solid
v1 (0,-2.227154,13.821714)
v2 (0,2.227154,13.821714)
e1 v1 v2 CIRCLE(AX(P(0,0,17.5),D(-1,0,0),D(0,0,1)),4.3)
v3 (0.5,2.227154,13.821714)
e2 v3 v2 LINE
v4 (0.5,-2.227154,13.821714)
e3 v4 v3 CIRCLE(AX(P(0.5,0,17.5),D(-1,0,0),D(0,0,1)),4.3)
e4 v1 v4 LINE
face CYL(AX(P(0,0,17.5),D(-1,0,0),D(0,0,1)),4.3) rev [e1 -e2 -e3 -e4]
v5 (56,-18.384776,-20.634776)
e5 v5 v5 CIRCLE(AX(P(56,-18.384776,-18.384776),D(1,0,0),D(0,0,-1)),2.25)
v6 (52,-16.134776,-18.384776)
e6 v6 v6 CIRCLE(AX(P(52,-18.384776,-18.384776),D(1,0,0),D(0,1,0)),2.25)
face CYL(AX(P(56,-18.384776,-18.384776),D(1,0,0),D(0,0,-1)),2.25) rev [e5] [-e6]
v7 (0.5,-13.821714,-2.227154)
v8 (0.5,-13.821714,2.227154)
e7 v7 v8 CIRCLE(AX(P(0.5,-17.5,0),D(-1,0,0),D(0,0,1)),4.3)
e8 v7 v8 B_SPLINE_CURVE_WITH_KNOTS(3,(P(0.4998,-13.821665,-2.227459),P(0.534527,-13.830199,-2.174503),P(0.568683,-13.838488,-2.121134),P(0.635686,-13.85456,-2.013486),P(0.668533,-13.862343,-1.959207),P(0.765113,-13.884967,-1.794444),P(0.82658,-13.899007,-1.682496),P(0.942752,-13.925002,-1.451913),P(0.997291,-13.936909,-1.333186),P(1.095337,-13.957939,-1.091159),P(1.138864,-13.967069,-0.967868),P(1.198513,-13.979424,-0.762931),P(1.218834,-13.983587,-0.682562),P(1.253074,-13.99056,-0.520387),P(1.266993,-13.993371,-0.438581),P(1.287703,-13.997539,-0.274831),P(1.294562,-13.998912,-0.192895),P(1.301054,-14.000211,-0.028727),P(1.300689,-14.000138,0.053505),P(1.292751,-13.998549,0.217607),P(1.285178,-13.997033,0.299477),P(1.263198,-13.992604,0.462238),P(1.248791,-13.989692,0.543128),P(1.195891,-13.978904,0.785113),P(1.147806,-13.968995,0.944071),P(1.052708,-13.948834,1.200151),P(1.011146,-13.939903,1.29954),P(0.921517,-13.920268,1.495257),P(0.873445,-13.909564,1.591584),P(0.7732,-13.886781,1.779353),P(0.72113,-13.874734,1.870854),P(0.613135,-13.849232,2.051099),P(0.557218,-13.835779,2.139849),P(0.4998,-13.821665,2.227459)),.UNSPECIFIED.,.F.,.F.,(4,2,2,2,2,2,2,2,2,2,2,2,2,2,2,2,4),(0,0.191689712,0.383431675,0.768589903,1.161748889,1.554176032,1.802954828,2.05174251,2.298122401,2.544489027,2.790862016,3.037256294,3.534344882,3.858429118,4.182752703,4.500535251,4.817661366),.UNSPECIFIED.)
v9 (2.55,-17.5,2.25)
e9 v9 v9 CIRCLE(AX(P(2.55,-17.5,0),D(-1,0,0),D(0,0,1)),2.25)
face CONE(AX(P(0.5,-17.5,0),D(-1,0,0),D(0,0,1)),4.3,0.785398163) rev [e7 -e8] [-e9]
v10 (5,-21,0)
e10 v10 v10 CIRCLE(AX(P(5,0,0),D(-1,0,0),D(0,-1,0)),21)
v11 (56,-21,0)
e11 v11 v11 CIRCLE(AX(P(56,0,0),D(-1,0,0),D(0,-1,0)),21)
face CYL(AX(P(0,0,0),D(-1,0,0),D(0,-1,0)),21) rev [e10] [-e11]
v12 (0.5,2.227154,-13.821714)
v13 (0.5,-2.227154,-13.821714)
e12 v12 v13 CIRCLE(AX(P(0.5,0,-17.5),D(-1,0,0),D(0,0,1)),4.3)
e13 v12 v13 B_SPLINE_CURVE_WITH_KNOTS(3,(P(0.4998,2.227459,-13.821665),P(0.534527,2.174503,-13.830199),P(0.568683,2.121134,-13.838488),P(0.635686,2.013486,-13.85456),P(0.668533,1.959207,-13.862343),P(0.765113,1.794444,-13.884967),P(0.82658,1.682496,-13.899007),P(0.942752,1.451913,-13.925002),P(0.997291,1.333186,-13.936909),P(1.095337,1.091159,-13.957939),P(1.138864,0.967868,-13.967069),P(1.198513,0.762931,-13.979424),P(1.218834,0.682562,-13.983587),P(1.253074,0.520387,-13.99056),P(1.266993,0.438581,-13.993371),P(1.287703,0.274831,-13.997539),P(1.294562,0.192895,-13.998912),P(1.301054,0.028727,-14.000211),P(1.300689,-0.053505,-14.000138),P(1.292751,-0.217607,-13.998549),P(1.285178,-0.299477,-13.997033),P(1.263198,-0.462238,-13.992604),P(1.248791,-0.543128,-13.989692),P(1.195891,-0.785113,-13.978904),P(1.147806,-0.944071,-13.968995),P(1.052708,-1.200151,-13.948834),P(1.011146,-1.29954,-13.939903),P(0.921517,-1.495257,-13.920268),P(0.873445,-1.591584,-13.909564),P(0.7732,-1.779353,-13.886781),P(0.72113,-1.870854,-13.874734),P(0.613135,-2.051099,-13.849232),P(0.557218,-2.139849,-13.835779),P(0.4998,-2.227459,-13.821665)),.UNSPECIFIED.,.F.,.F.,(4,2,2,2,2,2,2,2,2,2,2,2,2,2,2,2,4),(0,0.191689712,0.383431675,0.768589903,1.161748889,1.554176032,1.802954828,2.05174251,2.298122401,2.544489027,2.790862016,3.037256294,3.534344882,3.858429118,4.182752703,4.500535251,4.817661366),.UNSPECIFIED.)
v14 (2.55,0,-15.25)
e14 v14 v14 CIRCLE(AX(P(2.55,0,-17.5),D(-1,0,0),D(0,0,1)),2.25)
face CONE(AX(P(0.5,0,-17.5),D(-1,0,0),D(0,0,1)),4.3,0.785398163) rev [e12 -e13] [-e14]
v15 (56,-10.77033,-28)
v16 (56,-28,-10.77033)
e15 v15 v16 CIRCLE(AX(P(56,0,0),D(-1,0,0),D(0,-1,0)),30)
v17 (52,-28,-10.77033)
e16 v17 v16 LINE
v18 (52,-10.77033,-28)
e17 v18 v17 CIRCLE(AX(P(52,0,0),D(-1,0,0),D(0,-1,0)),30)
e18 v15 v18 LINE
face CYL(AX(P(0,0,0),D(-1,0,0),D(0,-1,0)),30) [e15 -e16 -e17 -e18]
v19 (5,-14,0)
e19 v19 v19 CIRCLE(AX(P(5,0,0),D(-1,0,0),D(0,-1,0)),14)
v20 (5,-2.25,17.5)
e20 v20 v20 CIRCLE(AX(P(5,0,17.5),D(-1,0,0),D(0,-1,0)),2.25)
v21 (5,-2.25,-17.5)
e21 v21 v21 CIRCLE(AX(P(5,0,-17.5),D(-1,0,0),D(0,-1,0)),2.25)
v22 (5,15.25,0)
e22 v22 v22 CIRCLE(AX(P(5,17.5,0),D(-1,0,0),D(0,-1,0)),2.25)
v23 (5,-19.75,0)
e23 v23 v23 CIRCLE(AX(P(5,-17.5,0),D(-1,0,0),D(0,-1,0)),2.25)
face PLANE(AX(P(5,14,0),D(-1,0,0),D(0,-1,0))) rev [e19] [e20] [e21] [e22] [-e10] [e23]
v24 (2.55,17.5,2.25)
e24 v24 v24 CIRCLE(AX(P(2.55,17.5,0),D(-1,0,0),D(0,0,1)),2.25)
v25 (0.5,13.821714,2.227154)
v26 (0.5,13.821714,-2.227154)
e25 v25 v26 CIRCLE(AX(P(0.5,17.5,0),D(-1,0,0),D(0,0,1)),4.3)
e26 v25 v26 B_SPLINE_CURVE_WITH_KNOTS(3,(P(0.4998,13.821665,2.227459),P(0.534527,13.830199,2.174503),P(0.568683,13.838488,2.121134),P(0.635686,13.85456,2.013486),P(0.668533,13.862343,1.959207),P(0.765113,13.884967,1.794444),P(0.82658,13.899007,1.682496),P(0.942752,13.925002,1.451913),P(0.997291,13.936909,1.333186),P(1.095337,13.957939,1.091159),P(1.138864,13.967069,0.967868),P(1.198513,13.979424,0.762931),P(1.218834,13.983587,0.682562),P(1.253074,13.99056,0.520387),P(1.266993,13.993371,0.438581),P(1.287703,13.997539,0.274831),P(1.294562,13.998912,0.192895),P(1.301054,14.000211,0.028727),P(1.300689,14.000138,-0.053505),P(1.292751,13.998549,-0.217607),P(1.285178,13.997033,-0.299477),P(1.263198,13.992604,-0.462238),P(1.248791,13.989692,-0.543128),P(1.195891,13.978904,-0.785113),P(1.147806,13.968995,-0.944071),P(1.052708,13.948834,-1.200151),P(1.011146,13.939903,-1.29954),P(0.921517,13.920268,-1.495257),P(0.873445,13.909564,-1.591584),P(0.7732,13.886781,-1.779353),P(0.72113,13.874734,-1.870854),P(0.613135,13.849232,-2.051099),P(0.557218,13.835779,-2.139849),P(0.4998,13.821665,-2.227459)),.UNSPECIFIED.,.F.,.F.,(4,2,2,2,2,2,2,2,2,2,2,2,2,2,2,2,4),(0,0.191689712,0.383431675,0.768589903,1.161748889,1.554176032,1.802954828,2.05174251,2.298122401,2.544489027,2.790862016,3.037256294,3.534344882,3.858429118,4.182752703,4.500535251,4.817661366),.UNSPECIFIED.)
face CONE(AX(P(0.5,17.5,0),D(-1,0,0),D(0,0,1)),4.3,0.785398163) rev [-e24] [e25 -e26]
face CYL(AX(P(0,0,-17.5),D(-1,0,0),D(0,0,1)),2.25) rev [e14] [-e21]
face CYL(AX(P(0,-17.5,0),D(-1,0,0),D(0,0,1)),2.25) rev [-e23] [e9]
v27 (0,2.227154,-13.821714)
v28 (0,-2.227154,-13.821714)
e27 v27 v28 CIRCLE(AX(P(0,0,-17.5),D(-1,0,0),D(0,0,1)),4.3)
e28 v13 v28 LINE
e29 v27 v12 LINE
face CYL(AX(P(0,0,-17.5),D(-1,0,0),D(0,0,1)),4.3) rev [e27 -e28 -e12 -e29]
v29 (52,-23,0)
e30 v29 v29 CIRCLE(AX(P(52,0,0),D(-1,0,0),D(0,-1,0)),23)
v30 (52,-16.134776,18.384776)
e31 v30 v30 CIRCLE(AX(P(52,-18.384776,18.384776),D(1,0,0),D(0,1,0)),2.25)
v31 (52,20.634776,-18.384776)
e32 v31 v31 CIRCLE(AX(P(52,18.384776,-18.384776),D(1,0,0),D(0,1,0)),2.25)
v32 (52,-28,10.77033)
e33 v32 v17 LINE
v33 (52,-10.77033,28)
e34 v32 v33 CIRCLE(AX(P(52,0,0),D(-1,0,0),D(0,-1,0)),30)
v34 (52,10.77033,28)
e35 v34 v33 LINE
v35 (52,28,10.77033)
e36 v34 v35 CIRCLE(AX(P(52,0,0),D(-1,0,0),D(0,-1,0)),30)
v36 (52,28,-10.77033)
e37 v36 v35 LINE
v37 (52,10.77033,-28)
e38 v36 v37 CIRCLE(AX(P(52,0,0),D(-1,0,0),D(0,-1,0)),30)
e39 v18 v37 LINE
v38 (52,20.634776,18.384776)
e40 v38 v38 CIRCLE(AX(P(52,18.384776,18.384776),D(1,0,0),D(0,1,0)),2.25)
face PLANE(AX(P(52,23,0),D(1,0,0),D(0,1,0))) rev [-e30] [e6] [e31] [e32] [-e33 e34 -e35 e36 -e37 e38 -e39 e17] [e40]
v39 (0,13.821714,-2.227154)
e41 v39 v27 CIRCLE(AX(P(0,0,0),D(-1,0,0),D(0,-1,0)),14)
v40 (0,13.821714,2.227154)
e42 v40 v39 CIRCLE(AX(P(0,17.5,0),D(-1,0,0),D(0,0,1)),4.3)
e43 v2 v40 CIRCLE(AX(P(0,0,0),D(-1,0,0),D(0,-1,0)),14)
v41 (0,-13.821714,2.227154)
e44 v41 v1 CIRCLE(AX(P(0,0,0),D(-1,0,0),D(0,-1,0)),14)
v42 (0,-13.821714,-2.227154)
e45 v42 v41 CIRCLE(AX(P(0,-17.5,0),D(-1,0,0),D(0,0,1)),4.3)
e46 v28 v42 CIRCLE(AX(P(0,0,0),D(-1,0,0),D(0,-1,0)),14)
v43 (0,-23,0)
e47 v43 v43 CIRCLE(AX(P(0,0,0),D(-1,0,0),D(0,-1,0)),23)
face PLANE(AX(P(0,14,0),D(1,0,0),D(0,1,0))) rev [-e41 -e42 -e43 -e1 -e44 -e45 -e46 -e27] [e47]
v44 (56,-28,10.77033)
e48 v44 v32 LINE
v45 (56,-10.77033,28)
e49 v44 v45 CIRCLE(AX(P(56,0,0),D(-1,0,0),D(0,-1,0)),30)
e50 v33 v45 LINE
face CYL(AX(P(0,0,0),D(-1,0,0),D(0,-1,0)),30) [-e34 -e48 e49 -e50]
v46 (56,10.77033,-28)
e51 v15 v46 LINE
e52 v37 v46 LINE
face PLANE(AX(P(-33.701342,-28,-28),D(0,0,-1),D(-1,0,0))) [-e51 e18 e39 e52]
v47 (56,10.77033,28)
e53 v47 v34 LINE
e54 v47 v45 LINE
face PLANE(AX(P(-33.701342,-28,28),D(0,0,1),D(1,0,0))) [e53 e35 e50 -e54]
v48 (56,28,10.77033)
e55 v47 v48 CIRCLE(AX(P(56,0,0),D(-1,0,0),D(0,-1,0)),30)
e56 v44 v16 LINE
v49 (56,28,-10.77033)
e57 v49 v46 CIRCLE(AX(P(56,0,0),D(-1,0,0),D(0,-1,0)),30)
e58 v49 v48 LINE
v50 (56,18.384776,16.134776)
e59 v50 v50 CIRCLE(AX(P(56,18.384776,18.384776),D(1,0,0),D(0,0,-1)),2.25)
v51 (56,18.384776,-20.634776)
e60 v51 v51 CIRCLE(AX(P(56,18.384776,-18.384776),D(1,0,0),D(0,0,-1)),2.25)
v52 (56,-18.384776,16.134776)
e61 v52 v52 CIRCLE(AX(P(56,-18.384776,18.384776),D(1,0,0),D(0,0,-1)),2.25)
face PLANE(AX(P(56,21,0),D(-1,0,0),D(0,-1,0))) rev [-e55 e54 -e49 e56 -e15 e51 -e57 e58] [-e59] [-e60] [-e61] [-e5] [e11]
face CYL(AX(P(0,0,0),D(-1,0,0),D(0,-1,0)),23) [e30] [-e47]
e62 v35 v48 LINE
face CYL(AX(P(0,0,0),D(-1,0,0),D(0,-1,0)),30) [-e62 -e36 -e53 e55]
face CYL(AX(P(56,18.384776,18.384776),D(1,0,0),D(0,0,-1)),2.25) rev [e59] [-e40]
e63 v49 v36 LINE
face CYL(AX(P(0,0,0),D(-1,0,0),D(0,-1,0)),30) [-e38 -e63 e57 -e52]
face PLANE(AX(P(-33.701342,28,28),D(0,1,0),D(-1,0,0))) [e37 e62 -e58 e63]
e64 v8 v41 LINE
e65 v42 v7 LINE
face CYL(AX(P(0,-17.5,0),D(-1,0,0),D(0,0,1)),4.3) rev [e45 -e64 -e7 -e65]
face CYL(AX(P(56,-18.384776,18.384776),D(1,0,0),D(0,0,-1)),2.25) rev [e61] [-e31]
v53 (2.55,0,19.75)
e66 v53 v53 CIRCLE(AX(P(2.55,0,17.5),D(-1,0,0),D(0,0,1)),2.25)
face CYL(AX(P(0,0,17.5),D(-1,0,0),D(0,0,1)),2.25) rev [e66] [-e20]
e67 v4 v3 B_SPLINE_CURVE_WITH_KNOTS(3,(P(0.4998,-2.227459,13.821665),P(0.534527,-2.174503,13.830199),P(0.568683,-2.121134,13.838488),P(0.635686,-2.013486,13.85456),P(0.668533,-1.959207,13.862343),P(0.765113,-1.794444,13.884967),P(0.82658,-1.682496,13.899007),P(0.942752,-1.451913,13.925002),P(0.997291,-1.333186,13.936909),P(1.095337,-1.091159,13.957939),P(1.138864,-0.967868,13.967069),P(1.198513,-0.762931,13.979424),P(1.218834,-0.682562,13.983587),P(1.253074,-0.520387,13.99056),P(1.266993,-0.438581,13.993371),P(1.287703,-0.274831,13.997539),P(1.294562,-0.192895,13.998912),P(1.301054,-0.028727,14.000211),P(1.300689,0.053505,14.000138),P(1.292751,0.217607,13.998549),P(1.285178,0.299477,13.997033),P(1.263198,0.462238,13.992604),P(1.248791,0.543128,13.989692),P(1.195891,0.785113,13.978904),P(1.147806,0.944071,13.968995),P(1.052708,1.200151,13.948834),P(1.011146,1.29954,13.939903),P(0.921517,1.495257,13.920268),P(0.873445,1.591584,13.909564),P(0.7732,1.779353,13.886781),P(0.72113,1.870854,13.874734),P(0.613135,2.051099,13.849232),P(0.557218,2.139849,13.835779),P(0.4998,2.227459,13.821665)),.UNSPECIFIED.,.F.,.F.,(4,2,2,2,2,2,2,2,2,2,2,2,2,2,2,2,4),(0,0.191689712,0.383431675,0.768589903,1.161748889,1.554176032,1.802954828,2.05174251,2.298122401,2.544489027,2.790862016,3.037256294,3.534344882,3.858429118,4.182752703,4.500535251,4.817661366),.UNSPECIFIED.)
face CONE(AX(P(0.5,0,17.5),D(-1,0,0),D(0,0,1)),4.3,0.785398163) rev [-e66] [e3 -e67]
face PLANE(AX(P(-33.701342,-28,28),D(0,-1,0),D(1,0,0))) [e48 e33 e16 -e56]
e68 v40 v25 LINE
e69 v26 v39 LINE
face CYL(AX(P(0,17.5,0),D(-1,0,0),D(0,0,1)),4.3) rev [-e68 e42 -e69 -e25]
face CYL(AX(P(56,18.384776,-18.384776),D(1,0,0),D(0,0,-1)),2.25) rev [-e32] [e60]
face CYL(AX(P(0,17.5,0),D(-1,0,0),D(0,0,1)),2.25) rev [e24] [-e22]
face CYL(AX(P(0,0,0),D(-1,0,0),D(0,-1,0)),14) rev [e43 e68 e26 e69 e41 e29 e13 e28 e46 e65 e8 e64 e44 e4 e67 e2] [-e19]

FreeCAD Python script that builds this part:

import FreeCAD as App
import Part
import Sketcher
from FreeCAD import Vector
Q = App.Units.Quantity


def add_polygon(sketch, points):
    """Adds a closed chain of lines whose ends are joined by coincident constraints."""
    first, n = sketch.GeometryCount, len(points)
    for a, b in zip(points, points[1:] + points[:1]):
        sketch.addGeometry(Part.LineSegment(App.Vector(*a, 0), App.Vector(*b, 0)), False)
    for i in range(n):
        sketch.addConstraint(Sketcher.Constraint("Coincident", first + i, 2, first + (i + 1) % n, 1))

doc = App.newDocument("Part")
body = doc.addObject("PartDesign::Body", "Body")

sketch1 = doc.addObject("Sketcher::SketchObject", "Sketch")
body.addObject(sketch1)
sketch1.AttachmentSupport = (doc.XY_Plane, [""])
sketch1.MapMode = "FlatFace"
add_polygon(sketch1, [(52, 30), (52, 23), (0, 23), (0, 14), (5, 14), (5, 21), (56, 21), (56, 30)])
sketch1.addConstraint([
    Sketcher.Constraint("Vertical", 0),
    Sketcher.Constraint("Horizontal", 1),
    Sketcher.Constraint("Vertical", 2),
    Sketcher.Constraint("Horizontal", 3),
    Sketcher.Constraint("Vertical", 4),
    Sketcher.Constraint("Horizontal", 5),
    Sketcher.Constraint("Vertical", 6),
    Sketcher.Constraint("Horizontal", 7),
    Sketcher.Constraint("PointOnObject", 1, 2, -2),
    Sketcher.Constraint("Equal", 0, 4),
    Sketcher.Constraint("DistanceX", 1, 2, 1, 1, Q("52 mm")),
    Sketcher.Constraint("DistanceX", 3, 1, 3, 2, Q("5 mm")),
    Sketcher.Constraint("DistanceX", 5, 1, 5, 2, Q("51 mm")),
    Sketcher.Constraint("DistanceY", 0, 2, 0, 1, Q("7 mm")),
    Sketcher.Constraint("DistanceY", 2, 2, 2, 1, Q("9 mm")),
    Sketcher.Constraint("DistanceY", -1, 1, 0, 2, Q("23 mm")),
])
revolution = doc.addObject("PartDesign::Revolution", "Revolution")
body.addObject(revolution)
revolution.Profile = sketch1
revolution.ReferenceAxis = (sketch1, ["H_Axis"])
revolution.Angle = 360

sketch2 = doc.addObject("Sketcher::SketchObject", "Sketch001")
body.addObject(sketch2)
sketch2.AttachmentSupport = (doc.XZ_Plane, [""])
sketch2.MapMode = "FlatFace"
add_polygon(sketch2, [(56, 17.5), (0, 17.5), (0, 21.8), (0.5, 21.8), (2.5, 19.8), (56, 19.8)])
sketch2.addGeometry(Part.LineSegment(Vector(0, 17.5, 0), Vector(56, 17.5, 0)), True)
sketch2.addConstraint([
    Sketcher.Constraint("Horizontal", 0),
    Sketcher.Constraint("Vertical", 1),
    Sketcher.Constraint("Horizontal", 2),
    Sketcher.Constraint("Horizontal", 4),
    Sketcher.Constraint("Vertical", 5),
    Sketcher.Constraint("Horizontal", 6),
    Sketcher.Constraint("Coincident", 6, 1, 0, 2),
    Sketcher.Constraint("PointOnObject", 0, 2, -2),
    Sketcher.Constraint("Vertical", 4, 2, 6, 2),
    Sketcher.Constraint("DistanceX", 0, 2, 0, 1, Q("56 mm")),
    Sketcher.Constraint("Angle", 3, Q("-45 deg")),
    Sketcher.Constraint("DistanceX", 2, 1, 2, 2, Q("0.5 mm")),
    Sketcher.Constraint("DistanceY", 1, 1, 1, 2, Q("4.3 mm")),
    Sketcher.Constraint("DistanceX", 4, 1, 4, 2, Q("53.45 mm")),
    Sketcher.Constraint("DistanceY", -1, 1, 0, 2, Q("17.5 mm")),
])
groove = doc.addObject("PartDesign::Groove", "Groove")
body.addObject(groove)
groove.Profile = sketch2
groove.ReferenceAxis = (sketch2, ["Axis0"])
groove.Angle = 360
doc.recompute()

datumline = doc.addObject("PartDesign::Line", "DatumLine")
body.addObject(datumline)
datumline.Placement = App.Placement(Vector(0, 0, 0), App.Rotation(Vector(0, 0, 1), Vector(0, -0.707106781, -0.707106781)))
linearpattern = doc.addObject("PartDesign::LinearPattern", "LinearPattern")
body.addObject(linearpattern)
linearpattern.Originals = [groove]
linearpattern.Direction = (datumline, [""])
linearpattern.Mode = "offset"
linearpattern.Offset = 24.748737
linearpattern.Occurrences = 2
body.Tip = linearpattern
doc.recompute()

linearpattern2 = doc.addObject("PartDesign::LinearPattern", "LinearPattern001")
body.addObject(linearpattern2)
linearpattern2.Originals = [groove]
linearpattern2.Direction = (doc.Z_Axis, [""])
linearpattern2.Mode = "offset"
linearpattern2.Offset = 35
linearpattern2.Occurrences = 2
linearpattern2.Reversed = True
body.Tip = linearpattern2
doc.recompute()

datumline2 = doc.addObject("PartDesign::Line", "DatumLine001")
body.addObject(datumline2)
datumline2.Placement = App.Placement(Vector(0, 0, 0), App.Rotation(Vector(0, 0, 1), Vector(0, 0.707106781, -0.707106781)))
linearpattern3 = doc.addObject("PartDesign::LinearPattern", "LinearPattern002")
body.addObject(linearpattern3)
linearpattern3.Originals = [groove]
linearpattern3.Direction = (datumline2, [""])
linearpattern3.Mode = "offset"
linearpattern3.Offset = 24.748737
linearpattern3.Occurrences = 2
body.Tip = linearpattern3

sketch3 = doc.addObject("Sketcher::SketchObject", "Sketch002")
body.addObject(sketch3)
sketch3.AttachmentSupport = (doc.YZ_Plane, [""])
sketch3.MapMode = "FlatFace"
sketch3.AttachmentOffset = App.Placement(Vector(0, 0, 56), App.Rotation())
add_polygon(sketch3, [(41, 41), (-41, 41), (-41, -41), (41, -41)])
add_polygon(sketch3, [(-28, -28), (-28, 28), (28, 28), (28, -28)])
sketch3.addConstraint([
    Sketcher.Constraint("Horizontal", 0),
    Sketcher.Constraint("Vertical", 1),
    Sketcher.Constraint("Horizontal", 2),
    Sketcher.Constraint("Vertical", 3),
    Sketcher.Constraint("Vertical", 4),
    Sketcher.Constraint("Horizontal", 5),
    Sketcher.Constraint("Vertical", 6),
    Sketcher.Constraint("Horizontal", 7),
    Sketcher.Constraint("Symmetric", 0, 2, 2, 2, -1, 1),
    Sketcher.Constraint("Symmetric", 4, 2, 6, 2, -1, 1),
    Sketcher.Constraint("Equal", 2, 1),
    Sketcher.Constraint("Equal", 7, 4),
    Sketcher.Constraint("DistanceX", 5, 1, 5, 2, Q("56 mm")),
    Sketcher.Constraint("DistanceX", 0, 2, 0, 1, Q("82.334 mm")),
])
pocket1 = doc.addObject("PartDesign::Pocket", "Pocket")
body.addObject(pocket1)
pocket1.Profile = sketch3
pocket1.Length = 4

sketch4 = doc.addObject("Sketcher::SketchObject", "Sketch003")
body.addObject(sketch4)
sketch4.AttachmentSupport = (doc.YZ_Plane, [""])
sketch4.MapMode = "FlatFace"
sketch4.AttachmentOffset = App.Placement(Vector(0, 0, 56), App.Rotation())
sketch4.addGeometry([
    Part.Circle(Vector(18.4, -18.4, 0), Vector(0, 0, 1), 2.2),
    Part.Circle(Vector(-18.4, -18.4, 0), Vector(0, 0, 1), 2.2),
    Part.Circle(Vector(-18.4, 18.4, 0), Vector(0, 0, 1), 2.2),
    Part.Circle(Vector(18.4, 18.4, 0), Vector(0, 0, 1), 2.2),
], False)
sketch4.addConstraint([
    Sketcher.Constraint("Equal", 0, 1),
    Sketcher.Constraint("Equal", 1, 2),
    Sketcher.Constraint("Equal", 2, 3),
    Sketcher.Constraint("Symmetric", 0, 3, 2, 3, -1, 1),
    Sketcher.Constraint("Symmetric", 1, 3, 3, 3, -1, 1),
    Sketcher.Constraint("Symmetric", 0, 3, 1, 3, -2),
    Sketcher.Constraint("Diameter", 0, Q("4.5 mm")),
    Sketcher.Constraint("DistanceX", -1, 1, 0, 3, Q("18.384776 mm")),
    Sketcher.Constraint("DistanceY", 0, 3, -1, 1, Q("18.384776 mm")),
])
doc.recompute()
hole = doc.addObject("PartDesign::Hole", "Hole")
body.addObject(hole)
hole.Profile = sketch4
hole.ThreadType = "None"
hole.Diameter = 4.5
hole.DepthType = "ThroughAll"

doc.recompute()
